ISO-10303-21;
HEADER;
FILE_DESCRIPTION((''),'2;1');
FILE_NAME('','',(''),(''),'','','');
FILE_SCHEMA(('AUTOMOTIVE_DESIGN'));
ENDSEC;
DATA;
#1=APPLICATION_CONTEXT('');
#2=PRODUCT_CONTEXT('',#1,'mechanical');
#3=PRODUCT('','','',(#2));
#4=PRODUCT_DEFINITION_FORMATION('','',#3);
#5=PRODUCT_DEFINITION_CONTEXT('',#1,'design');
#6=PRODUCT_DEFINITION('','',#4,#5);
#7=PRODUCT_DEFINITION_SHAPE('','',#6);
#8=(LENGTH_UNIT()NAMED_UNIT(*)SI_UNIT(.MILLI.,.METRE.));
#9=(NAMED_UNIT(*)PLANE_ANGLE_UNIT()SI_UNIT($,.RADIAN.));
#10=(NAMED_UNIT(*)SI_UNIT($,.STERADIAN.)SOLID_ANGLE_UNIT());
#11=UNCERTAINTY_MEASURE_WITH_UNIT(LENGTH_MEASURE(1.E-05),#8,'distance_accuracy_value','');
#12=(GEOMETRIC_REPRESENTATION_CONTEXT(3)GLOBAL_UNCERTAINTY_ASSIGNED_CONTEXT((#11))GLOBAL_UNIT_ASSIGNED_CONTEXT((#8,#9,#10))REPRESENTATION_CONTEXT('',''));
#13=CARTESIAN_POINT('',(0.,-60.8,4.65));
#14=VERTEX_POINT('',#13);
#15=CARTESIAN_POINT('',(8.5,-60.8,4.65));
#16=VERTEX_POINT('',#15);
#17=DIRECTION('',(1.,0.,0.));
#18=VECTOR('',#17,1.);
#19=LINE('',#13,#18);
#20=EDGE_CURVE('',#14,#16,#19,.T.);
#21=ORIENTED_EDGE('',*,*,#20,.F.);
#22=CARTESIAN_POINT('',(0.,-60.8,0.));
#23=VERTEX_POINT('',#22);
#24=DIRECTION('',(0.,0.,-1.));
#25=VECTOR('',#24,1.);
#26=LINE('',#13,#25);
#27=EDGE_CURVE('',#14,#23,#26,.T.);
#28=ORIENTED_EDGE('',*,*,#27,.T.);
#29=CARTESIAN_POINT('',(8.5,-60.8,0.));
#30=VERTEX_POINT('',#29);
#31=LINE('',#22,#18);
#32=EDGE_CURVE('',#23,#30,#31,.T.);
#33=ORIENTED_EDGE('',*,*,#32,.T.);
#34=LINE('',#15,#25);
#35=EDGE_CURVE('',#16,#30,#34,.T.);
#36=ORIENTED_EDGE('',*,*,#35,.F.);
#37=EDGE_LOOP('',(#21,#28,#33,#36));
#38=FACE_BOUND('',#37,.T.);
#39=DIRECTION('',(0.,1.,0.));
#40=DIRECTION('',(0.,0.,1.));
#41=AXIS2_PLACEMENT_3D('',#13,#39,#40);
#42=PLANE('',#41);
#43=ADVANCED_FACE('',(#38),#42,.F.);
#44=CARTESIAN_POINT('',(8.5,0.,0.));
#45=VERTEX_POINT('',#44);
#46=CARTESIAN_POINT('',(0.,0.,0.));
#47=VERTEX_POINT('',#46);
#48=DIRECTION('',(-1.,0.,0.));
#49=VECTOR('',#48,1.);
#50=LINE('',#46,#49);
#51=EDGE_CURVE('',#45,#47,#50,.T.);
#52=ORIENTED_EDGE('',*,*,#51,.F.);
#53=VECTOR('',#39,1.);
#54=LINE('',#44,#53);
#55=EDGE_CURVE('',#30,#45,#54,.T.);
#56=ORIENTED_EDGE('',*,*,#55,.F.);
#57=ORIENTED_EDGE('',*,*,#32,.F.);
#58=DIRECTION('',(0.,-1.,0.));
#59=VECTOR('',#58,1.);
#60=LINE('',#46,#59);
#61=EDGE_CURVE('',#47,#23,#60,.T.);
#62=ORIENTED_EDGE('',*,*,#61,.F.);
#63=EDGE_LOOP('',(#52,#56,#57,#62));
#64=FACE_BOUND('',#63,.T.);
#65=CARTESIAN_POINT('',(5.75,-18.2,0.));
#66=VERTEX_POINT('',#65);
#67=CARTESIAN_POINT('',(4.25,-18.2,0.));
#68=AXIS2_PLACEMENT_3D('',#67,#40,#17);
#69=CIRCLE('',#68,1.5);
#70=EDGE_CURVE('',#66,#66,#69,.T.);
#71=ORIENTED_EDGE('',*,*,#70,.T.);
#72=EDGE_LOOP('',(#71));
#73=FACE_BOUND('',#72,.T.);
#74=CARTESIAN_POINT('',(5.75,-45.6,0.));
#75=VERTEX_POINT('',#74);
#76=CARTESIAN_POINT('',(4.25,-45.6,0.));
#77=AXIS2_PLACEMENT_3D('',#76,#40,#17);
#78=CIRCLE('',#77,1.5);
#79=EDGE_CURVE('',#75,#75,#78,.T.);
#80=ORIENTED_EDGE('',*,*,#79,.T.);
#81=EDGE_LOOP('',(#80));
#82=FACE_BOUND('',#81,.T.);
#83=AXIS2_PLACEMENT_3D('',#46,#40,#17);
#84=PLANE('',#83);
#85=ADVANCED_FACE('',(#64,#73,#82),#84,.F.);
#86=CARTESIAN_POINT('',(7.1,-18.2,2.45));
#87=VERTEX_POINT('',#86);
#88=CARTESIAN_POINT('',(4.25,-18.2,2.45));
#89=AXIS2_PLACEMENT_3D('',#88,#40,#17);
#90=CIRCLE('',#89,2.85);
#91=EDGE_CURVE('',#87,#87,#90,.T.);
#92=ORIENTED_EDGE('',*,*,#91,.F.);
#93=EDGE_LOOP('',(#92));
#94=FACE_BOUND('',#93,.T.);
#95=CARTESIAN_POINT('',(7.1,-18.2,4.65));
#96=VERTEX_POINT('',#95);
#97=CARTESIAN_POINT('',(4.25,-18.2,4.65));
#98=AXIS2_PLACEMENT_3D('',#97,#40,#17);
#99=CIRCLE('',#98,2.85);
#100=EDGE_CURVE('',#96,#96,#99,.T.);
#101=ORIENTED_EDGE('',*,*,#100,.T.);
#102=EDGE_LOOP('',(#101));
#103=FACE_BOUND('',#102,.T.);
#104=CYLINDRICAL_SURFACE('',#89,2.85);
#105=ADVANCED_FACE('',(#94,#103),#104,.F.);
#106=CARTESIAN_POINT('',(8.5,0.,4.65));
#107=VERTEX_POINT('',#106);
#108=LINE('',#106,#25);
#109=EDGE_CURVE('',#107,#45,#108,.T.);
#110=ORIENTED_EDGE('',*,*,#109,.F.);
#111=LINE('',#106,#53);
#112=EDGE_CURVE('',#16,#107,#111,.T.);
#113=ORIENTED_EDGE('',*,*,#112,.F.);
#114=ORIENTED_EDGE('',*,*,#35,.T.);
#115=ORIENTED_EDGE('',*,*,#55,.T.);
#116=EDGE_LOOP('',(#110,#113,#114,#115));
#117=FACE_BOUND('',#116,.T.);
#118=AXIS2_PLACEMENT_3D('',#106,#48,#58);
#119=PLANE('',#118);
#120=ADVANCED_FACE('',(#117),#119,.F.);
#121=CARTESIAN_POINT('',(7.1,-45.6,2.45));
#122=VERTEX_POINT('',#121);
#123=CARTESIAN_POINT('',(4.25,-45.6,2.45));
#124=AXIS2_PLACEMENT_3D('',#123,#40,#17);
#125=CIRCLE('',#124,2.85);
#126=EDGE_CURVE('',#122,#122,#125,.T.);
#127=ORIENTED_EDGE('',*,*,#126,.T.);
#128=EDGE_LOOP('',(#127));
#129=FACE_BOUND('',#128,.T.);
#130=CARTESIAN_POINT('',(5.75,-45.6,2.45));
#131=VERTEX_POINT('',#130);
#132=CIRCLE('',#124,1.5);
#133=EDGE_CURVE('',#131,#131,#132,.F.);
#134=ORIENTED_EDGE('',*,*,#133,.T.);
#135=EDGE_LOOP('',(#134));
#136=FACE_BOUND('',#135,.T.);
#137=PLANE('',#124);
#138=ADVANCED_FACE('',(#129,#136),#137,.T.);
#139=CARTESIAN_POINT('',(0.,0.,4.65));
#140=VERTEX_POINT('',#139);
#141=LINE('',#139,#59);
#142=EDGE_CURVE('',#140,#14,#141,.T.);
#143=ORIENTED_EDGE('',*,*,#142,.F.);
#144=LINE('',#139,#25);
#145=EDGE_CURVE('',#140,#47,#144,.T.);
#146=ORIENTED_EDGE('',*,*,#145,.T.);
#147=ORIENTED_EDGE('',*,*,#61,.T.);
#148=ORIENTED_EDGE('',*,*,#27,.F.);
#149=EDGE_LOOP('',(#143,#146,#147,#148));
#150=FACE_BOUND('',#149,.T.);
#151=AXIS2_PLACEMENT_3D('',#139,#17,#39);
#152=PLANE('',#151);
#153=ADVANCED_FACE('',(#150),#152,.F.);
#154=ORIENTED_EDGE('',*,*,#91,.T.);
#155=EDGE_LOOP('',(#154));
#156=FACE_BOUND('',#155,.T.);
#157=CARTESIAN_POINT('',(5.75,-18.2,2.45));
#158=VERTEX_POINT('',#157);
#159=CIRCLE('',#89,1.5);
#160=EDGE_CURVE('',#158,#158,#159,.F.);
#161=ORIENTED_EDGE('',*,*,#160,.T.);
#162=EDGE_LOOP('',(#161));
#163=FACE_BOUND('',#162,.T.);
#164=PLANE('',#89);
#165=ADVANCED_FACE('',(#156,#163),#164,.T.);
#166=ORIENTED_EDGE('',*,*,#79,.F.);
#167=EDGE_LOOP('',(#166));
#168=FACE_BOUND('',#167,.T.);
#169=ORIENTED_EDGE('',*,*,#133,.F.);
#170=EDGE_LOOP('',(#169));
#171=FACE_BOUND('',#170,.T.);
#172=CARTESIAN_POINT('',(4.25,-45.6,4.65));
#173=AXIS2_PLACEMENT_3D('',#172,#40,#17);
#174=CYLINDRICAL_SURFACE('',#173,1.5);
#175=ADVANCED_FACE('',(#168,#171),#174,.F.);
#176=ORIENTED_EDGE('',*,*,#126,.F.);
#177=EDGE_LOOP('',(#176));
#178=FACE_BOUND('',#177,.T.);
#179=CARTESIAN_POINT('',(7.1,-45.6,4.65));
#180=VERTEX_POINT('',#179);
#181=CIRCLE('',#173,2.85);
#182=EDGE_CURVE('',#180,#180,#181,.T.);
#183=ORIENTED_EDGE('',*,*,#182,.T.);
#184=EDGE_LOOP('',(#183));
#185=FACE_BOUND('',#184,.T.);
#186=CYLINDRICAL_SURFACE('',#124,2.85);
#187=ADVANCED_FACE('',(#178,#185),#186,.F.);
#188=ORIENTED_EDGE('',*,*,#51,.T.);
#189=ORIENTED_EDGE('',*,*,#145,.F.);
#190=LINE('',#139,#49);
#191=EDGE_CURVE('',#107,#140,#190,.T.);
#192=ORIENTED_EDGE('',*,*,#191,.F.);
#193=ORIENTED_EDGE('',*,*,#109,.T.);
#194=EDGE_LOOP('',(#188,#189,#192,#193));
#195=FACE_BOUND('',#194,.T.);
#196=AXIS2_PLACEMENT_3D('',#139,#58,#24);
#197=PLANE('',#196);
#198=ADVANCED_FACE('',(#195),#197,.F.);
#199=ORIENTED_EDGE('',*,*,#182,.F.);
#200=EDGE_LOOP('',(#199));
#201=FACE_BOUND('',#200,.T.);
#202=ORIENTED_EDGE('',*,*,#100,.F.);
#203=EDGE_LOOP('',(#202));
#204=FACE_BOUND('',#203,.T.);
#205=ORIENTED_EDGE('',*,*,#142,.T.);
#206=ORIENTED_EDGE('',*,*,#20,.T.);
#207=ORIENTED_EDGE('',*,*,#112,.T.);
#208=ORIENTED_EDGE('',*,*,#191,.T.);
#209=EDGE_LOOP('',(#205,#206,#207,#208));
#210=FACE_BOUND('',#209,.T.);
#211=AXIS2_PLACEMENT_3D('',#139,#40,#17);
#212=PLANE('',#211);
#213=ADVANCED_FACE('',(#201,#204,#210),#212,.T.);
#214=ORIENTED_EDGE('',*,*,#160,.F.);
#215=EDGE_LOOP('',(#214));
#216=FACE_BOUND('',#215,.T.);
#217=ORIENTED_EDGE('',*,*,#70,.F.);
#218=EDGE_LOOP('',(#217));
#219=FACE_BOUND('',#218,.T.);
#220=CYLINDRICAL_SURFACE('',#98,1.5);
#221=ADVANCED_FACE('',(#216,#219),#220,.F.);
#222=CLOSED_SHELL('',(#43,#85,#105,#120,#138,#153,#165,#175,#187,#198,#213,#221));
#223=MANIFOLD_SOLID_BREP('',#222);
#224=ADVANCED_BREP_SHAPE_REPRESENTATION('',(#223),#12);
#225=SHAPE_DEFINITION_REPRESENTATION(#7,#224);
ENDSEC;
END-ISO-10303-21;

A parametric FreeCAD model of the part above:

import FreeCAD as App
import Part
import Sketcher


def add_polygon(sketch, points):
    """Adds a closed chain of lines whose ends are joined by coincident constraints."""
    first, n = sketch.GeometryCount, len(points)
    for a, b in zip(points, points[1:] + points[:1]):
        sketch.addGeometry(Part.LineSegment(App.Vector(*a, 0), App.Vector(*b, 0)), False)
    for i in range(n):
        sketch.addConstraint(Sketcher.Constraint("Coincident", first + i, 2, first + (i + 1) % n, 1))

doc = App.newDocument("Part")
body = doc.addObject("PartDesign::Body", "Body")

sketch1 = body.newObject("Sketcher::SketchObject", "Sketch")
sketch1.AttachmentSupport = (doc.getObject("XY_Plane"), [""])
sketch1.MapMode = "FlatFace"
add_polygon(sketch1, [(0, 0), (0, -61), (8, -61), (8, 0)])
sketch1.addConstraint(Sketcher.Constraint("Vertical", 0))
sketch1.addConstraint(Sketcher.Constraint("Horizontal", 1))
sketch1.addConstraint(Sketcher.Constraint("Vertical", 2))
sketch1.addConstraint(Sketcher.Constraint("Horizontal", 3))
sketch1.addConstraint(Sketcher.Constraint("Coincident", 3, 2, -1, 1))
sketch1.addConstraint(Sketcher.Constraint("DistanceX", 1, 1, 1, 2, 8.5))
sketch1.addConstraint(Sketcher.Constraint("DistanceY", 0, 2, 0, 1, 60.8))
pad1 = body.newObject("PartDesign::Pad", "Pad")
pad1.Profile = sketch1
pad1.Length = 4.65

sketch2 = body.newObject("Sketcher::SketchObject", "Sketch001")
sketch2.AttachmentSupport = (doc.getObject("XY_Plane"), [""])
sketch2.MapMode = "FlatFace"
sketch2.AttachmentOffset = App.Placement(App.Vector(0, 0, 4.65), App.Rotation())
sketch2.addGeometry(Part.Circle(App.Vector(4.2, -18.2, 0), App.Vector(0, 0, 1), 1.5), False)
sketch2.addGeometry(Part.Circle(App.Vector(4.2, -45.6, 0), App.Vector(0, 0, 1), 1.5), False)
sketch2.addConstraint(Sketcher.Constraint("Equal", 0, 1))
sketch2.addConstraint(Sketcher.Constraint("Vertical", 0, 3, 1, 3))
sketch2.addConstraint(Sketcher.Constraint("Diameter", 0, 3.0))
sketch2.addConstraint(Sketcher.Constraint("DistanceY", 0, 3, -1, 1, 18.2))
sketch2.addConstraint(Sketcher.Constraint("DistanceY", 1, 3, -1, 1, 45.6))
sketch2.addConstraint(Sketcher.Constraint("DistanceX", -1, 1, 0, 3, 4.25))
doc.recompute()
hole = body.newObject("PartDesign::Hole", "Hole")
hole.Profile = sketch2
hole.ThreadType = "None"
hole.Diameter = 3
hole.DepthType = "Dimension"
hole.Depth = 5
hole.DrillPoint = "Angled"
hole.DrillPointAngle = 118

sketch3 = body.newObject("Sketcher::SketchObject", "Sketch002")
sketch3.AttachmentSupport = (doc.getObject("XY_Plane"), [""])
sketch3.MapMode = "FlatFace"
sketch3.AttachmentOffset = App.Placement(App.Vector(0, 0, 4.65), App.Rotation())
sketch3.addGeometry(Part.Circle(App.Vector(4.2, -18.2, 0), App.Vector(0, 0, 1), 2.9), False)
sketch3.addGeometry(Part.Circle(App.Vector(4.2, -45.6, 0), App.Vector(0, 0, 1), 2.9), False)
sketch3.addConstraint(Sketcher.Constraint("Equal", 0, 1))
sketch3.addConstraint(Sketcher.Constraint("Vertical", 0, 3, 1, 3))
sketch3.addConstraint(Sketcher.Constraint("Diameter", 0, 5.7))
sketch3.addConstraint(Sketcher.Constraint("DistanceY", 0, 3, -1, 1, 18.2))
sketch3.addConstraint(Sketcher.Constraint("DistanceY", 1, 3, -1, 1, 45.6))
sketch3.addConstraint(Sketcher.Constraint("DistanceX", -1, 1, 0, 3, 4.25))
pocket1 = body.newObject("PartDesign::Pocket", "Pocket")
pocket1.Profile = sketch3
pocket1.Length = 2.2

doc.recompute()
